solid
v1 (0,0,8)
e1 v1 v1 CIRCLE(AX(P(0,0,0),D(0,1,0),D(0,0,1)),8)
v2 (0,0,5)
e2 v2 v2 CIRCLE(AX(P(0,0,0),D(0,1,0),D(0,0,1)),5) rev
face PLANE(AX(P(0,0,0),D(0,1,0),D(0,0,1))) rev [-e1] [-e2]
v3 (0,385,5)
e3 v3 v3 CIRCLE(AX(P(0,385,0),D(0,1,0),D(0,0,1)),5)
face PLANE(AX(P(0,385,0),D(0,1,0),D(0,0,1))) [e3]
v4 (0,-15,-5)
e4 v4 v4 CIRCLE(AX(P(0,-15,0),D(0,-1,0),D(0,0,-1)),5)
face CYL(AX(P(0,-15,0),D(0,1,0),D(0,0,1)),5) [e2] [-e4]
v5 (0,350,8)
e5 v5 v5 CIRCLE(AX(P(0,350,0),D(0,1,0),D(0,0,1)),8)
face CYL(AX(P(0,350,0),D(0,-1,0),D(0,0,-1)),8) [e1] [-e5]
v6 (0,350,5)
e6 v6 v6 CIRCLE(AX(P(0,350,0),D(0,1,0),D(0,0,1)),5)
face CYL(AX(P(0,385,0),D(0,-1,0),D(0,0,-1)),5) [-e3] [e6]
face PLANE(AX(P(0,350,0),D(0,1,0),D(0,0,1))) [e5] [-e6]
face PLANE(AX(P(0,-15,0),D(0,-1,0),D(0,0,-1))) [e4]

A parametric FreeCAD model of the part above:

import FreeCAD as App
import Part
import Sketcher
from FreeCAD import Vector

doc = App.newDocument("Part")
params = doc.addObject("Spreadsheet::Sheet", "Params")
for row, (alias, value) in enumerate([
    ("sketch1_diameter", "16 mm"),
    ("pad1_length", "350 mm"),
    ("sketch2_diameter", "10 mm"),
    ("pad2_length", "35 mm"),
    ("sketch3_diameter", "10 mm"),
    ("pad3_length", "15 mm"),
], start=1):
    params.set(f"A{row}", alias)
    params.set(f"B{row}", "=" + value)
    params.setAlias(f"B{row}", alias)

body = doc.addObject("PartDesign::Body", "Body")

# Sketch on XZ plane
sketch1 = body.newObject("Sketcher::SketchObject", "Sketch")
sketch1.AttachmentSupport = (doc.getObject("XZ_Plane"), [""])
sketch1.MapMode = "FlatFace"
sketch1.addGeometry(Part.Circle(Vector(0, 0, 0), Vector(0, 0, 1), 8), False)
sketch1.addConstraint([
    Sketcher.Constraint("Coincident", 0, 3, -1, 1),
    Sketcher.Constraint("Diameter", 0, 16.0),
])
sketch1.setExpression("Constraints[1]", "Params.sketch1_diameter")
pad1 = body.newObject("PartDesign::Pad", "Pad")
pad1.Profile = sketch1
pad1.setExpression("Length", "Params.pad1_length")
pad1.Reversed = True

# Sketch on XZ plane
sketch2 = body.newObject("Sketcher::SketchObject", "Sketch001")
sketch2.AttachmentSupport = (doc.getObject("XZ_Plane"), [""])
sketch2.MapMode = "FlatFace"
sketch2.AttachmentOffset = App.Placement(Vector(0, 0, -350), App.Rotation())
sketch2.addGeometry(Part.Circle(Vector(0, 0, 0), Vector(0, 0, 1), 5), False)
sketch2.addConstraint([
    Sketcher.Constraint("Coincident", 0, 3, -1, 1),
    Sketcher.Constraint("Diameter", 0, 10.0),
])
sketch2.setExpression("Constraints[1]", "Params.sketch2_diameter")
pad2 = body.newObject("PartDesign::Pad", "Pad001")
pad2.Profile = sketch2
pad2.setExpression("Length", "Params.pad2_length")
pad2.Reversed = True

# Sketch on XZ plane
sketch3 = body.newObject("Sketcher::SketchObject", "Sketch002")
sketch3.AttachmentSupport = (doc.getObject("XZ_Plane"), [""])
sketch3.MapMode = "FlatFace"
sketch3.addGeometry(Part.Circle(Vector(0, 0, 0), Vector(0, 0, 1), 5), False)
sketch3.addConstraint([
    Sketcher.Constraint("Coincident", 0, 3, -1, 1),
    Sketcher.Constraint("Diameter", 0, 10.0),
])
sketch3.setExpression("Constraints[1]", "Params.sketch3_diameter")
pad3 = body.newObject("PartDesign::Pad", "Pad002")
pad3.Profile = sketch3
pad3.setExpression("Length", "Params.pad3_length")

doc.recompute()
